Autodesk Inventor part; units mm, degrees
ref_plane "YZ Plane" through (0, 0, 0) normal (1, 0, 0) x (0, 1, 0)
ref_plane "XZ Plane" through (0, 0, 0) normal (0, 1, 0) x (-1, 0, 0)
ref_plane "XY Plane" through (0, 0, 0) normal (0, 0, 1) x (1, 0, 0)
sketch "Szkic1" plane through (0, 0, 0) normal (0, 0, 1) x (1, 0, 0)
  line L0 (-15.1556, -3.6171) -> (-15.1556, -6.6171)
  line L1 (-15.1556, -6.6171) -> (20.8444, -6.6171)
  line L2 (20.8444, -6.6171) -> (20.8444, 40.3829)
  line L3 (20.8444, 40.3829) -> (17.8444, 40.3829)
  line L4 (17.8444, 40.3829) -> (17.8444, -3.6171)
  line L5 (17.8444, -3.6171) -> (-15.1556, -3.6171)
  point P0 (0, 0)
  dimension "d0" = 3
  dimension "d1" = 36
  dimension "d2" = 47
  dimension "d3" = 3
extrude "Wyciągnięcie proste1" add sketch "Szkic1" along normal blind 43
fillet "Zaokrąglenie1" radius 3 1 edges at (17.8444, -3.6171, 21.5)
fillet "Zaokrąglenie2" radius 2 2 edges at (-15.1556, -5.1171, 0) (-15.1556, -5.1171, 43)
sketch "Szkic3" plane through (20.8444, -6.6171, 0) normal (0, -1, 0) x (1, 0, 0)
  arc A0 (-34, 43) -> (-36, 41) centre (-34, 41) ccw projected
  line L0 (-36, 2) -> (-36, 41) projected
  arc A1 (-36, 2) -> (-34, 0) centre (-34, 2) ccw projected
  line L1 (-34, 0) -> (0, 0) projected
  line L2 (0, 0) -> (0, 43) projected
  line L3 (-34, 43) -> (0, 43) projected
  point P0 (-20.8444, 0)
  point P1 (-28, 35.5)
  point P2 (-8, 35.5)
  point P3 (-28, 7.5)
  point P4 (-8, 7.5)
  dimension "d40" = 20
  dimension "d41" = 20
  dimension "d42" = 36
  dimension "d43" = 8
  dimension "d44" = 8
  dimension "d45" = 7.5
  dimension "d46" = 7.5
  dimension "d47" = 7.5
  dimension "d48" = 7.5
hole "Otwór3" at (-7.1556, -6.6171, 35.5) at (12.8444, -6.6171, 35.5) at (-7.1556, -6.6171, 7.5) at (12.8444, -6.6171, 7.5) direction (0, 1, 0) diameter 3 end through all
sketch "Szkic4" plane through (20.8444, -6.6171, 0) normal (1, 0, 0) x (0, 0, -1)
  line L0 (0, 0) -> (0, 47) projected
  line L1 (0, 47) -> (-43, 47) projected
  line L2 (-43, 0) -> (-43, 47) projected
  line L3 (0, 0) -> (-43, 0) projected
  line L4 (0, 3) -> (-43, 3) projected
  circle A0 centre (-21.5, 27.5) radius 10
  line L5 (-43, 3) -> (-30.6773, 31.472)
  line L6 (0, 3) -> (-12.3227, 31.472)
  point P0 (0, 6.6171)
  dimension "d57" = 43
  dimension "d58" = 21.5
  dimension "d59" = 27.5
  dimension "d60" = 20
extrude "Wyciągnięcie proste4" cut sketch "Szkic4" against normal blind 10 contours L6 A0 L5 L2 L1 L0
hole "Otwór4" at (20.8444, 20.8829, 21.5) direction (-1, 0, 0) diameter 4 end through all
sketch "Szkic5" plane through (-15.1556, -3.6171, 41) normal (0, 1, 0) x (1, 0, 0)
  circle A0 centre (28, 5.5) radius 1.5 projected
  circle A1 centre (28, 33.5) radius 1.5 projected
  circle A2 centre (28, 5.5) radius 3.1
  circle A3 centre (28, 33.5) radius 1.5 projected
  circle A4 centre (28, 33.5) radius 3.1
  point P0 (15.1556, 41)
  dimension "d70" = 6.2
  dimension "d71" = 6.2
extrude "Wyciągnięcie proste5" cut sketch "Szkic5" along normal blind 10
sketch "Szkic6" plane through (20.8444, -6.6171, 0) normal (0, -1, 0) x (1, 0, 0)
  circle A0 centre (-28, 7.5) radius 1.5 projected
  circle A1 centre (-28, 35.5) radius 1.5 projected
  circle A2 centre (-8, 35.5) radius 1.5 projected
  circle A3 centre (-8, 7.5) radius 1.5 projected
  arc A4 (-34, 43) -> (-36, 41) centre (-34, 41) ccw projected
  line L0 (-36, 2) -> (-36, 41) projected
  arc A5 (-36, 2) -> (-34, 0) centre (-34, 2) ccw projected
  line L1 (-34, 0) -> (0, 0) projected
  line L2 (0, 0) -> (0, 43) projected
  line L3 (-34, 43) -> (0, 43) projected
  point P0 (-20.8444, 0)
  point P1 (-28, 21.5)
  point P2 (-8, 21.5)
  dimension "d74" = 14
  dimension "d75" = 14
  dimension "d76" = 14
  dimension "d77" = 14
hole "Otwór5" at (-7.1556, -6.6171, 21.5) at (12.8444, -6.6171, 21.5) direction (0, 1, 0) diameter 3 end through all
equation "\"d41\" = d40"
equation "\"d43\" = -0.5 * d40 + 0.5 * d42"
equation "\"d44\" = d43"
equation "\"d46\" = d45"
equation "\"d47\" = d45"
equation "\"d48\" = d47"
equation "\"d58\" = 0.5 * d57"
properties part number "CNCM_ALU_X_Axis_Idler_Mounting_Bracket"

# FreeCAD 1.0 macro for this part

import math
import FreeCAD as App
import Part
import Sketcher

V = App.Vector
Q = App.Units.Quantity


def edges_at(feature, points):
    """Names of the edges that pass closest to the given points."""
    edges = feature.Shape.Edges
    near = lambda p: min(range(len(edges)), key=lambda i: edges[i].distToShape(Part.Vertex(*p))[0])
    return sorted({f"Edge{near(p) + 1}" for p in points})


def add_polygon(sketch, points):
    """Adds a closed chain of lines whose ends are joined by coincident constraints."""
    first, n = sketch.GeometryCount, len(points)
    for a, b in zip(points, points[1:] + points[:1]):
        sketch.addGeometry(Part.LineSegment(App.Vector(*a, 0), App.Vector(*b, 0)), False)
    for i in range(n):
        sketch.addConstraint(Sketcher.Constraint("Coincident", first + i, 2, first + (i + 1) % n, 1))

doc = App.newDocument("Part")
body = doc.addObject("PartDesign::Body", "Body")

# Sketch on XY plane
sketch1 = body.newObject("Sketcher::SketchObject", "Sketch")
sketch1.AttachmentSupport = (doc.getObject("XY_Plane"), [""])
sketch1.MapMode = "FlatFace"
add_polygon(sketch1, [(17.8444, -3.6171), (-15.1556, -3.6171), (-15.1556, -6.6171), (20.8444, -6.6171), (20.8444, 40.3829), (17.8444, 40.3829)])  # lines 0-5
sketch1.addConstraint([
    Sketcher.Constraint("Horizontal", 0),
    Sketcher.Constraint("Vertical", 1),
    Sketcher.Constraint("Horizontal", 2),
    Sketcher.Constraint("Vertical", 3),
    Sketcher.Constraint("Horizontal", 4),
    Sketcher.Constraint("Vertical", 5),
    Sketcher.Constraint("Equal", 4, 1),
    Sketcher.Constraint("DistanceX", 2, 1, 2, 2, Q("36 mm")),
    Sketcher.Constraint("DistanceX", 4, 2, 4, 1, Q("3 mm")),
    Sketcher.Constraint("DistanceY", 3, 1, 3, 2, Q("47 mm")),
    Sketcher.Constraint("DistanceY", 0, 2, -1, 1, Q("3.617 mm")),
    Sketcher.Constraint("DistanceX", 0, 2, -1, 1, Q("15.1556 mm")),
])
pad1 = body.newObject("PartDesign::Pad", "Pad")
pad1.Profile = sketch1
pad1.Length = 43
doc.recompute()

fillet = body.newObject("PartDesign::Fillet", "Fillet")
fillet.Base = (pad1, edges_at(pad1, [(17.844, -3.617, 21.5)]))
fillet.Radius = 3
doc.recompute()

fillet2 = body.newObject("PartDesign::Fillet", "Fillet001")
fillet2.Base = (fillet, edges_at(fillet, [(-15.156, -5.117, 0), (-15.156, -5.117, 43)]))
fillet2.Radius = 2

# Sketch on XZ plane
sketch2 = body.newObject("Sketcher::SketchObject", "Sketch001")
sketch2.AttachmentSupport = (doc.getObject("XZ_Plane"), [""])
sketch2.MapMode = "FlatFace"
sketch2.AttachmentOffset = App.Placement(V(0, 0, 6.6171), App.Rotation())
sketch2.addGeometry([
    Part.Circle(V(-7.1556, 35.5, 0), V(0, 0, 1), 1.5),
    Part.Circle(V(12.8444, 35.5, 0), V(0, 0, 1), 1.5),
    Part.Circle(V(-7.1556, 7.5, 0), V(0, 0, 1), 1.5),
    Part.Circle(V(12.8444, 7.5, 0), V(0, 0, 1), 1.5),
], False)
sketch2.addConstraint([
    Sketcher.Constraint("Equal", 0, 1),
    Sketcher.Constraint("Equal", 1, 2),
    Sketcher.Constraint("Equal", 2, 3),
    Sketcher.Constraint("Horizontal", 0, 3, 1, 3),
    Sketcher.Constraint("Horizontal", 2, 3, 3, 3),
    Sketcher.Constraint("Vertical", 0, 3, 2, 3),
    Sketcher.Constraint("Vertical", 1, 3, 3, 3),
    Sketcher.Constraint("Diameter", 0, Q("3 mm")),
    Sketcher.Constraint("DistanceX", 0, 3, 1, 3, Q("20 mm")),
    Sketcher.Constraint("DistanceY", 2, 3, 0, 3, Q("28 mm")),
    Sketcher.Constraint("DistanceY", -1, 1, 0, 3, Q("35.5 mm")),
    Sketcher.Constraint("DistanceX", 0, 3, -1, 1, Q("7.1556 mm")),
])
doc.recompute()
hole = body.newObject("PartDesign::Hole", "Hole")
hole.Profile = sketch2
hole.ThreadType = "None"
hole.Diameter = 3
hole.DepthType = "ThroughAll"

# Sketch on YZ plane
sketch3 = body.newObject("Sketcher::SketchObject", "Sketch002")
sketch3.AttachmentSupport = (doc.getObject("YZ_Plane"), [""])
sketch3.MapMode = "FlatFace"
sketch3.AttachmentOffset = App.Placement(V(0, 0, 20.8444), App.Rotation())
sketch3.addGeometry([
    Part.LineSegment(V(24.8549, 12.3227, 0), V(-3.6171, 0, 0)),  # 0
    Part.LineSegment(V(-3.6171, 0, 0), V(40.3829, 0, 0)),  # 1
    Part.LineSegment(V(40.3829, 0, 0), V(40.3829, 43, 0)),  # 2
    Part.LineSegment(V(40.3829, 43, 0), V(-3.6171, 43, 0)),  # 3
    Part.LineSegment(V(-3.6171, 43, 0), V(24.8549, 30.6773, 0)),  # 4
    Part.ArcOfCircle(Part.Circle(V(20.8829, 21.5, 0), V(0, 0, 1), 10), math.radians(-66.5967), math.radians(66.5967)),  # 5
], False)
sketch3.addConstraint([
    Sketcher.Constraint("Coincident", 0, 2, 1, 1),
    Sketcher.Constraint("Coincident", 1, 2, 2, 1),
    Sketcher.Constraint("Coincident", 2, 2, 3, 1),
    Sketcher.Constraint("Coincident", 3, 2, 4, 1),
    Sketcher.Constraint("Tangent", 4, 2, 5, 2),
    Sketcher.Constraint("Tangent", 5, 1, 0, 1),
    Sketcher.Constraint("Horizontal", 1),
    Sketcher.Constraint("Vertical", 2),
    Sketcher.Constraint("Horizontal", 3),
    Sketcher.Constraint("PointOnObject", 0, 2, -1),
    Sketcher.Constraint("Vertical", 0, 2, 3, 2),
    Sketcher.Constraint("Vertical", 4, 2, 5, 1),
    Sketcher.Constraint("Radius", 5, Q("10 mm")),
    Sketcher.Constraint("DistanceY", 2, 1, 2, 2, Q("43 mm")),
    Sketcher.Constraint("DistanceX", 1, 1, 1, 2, Q("44 mm")),
    Sketcher.Constraint("DistanceX", 0, 2, 5, 3, Q("24.5 mm")),
    Sketcher.Constraint("DistanceX", -1, 1, 5, 3, Q("20.883 mm")),
])
pocket1 = body.newObject("PartDesign::Pocket", "Pocket")
pocket1.Profile = sketch3
pocket1.Length = 10

# Sketch on YZ plane
sketch4 = body.newObject("Sketcher::SketchObject", "Sketch003")
sketch4.AttachmentSupport = (doc.getObject("YZ_Plane"), [""])
sketch4.MapMode = "FlatFace"
sketch4.AttachmentOffset = App.Placement(V(0, 0, 20.8444), App.Rotation())
sketch4.addGeometry(Part.Circle(V(20.8829, 21.5, 0), V(0, 0, 1), 2), False)
sketch4.addConstraint([
    Sketcher.Constraint("Diameter", 0, Q("4 mm")),
    Sketcher.Constraint("DistanceY", -1, 1, 0, 3, Q("21.5 mm")),
    Sketcher.Constraint("DistanceX", -1, 1, 0, 3, Q("20.883 mm")),
])
doc.recompute()
hole2 = body.newObject("PartDesign::Hole", "Hole001")
hole2.Profile = sketch4
hole2.ThreadType = "None"
hole2.Diameter = 4
hole2.DepthType = "ThroughAll"

# Sketch on XZ plane
sketch5 = body.newObject("Sketcher::SketchObject", "Sketch004")
sketch5.AttachmentSupport = (doc.getObject("XZ_Plane"), [""])
sketch5.MapMode = "FlatFace"
sketch5.AttachmentOffset = App.Placement(V(0, 0, 3.6171), App.Rotation())
sketch5.addGeometry([
    Part.Circle(V(12.8444, 35.5, 0), V(0, 0, 1), 3.1),
    Part.Circle(V(12.8444, 35.5, 0), V(0, 0, 1), 1.5),
    Part.Circle(V(12.8444, 7.5, 0), V(0, 0, 1), 3.1),
    Part.Circle(V(12.8444, 7.5, 0), V(0, 0, 1), 1.5),
], False)
sketch5.addConstraint([
    Sketcher.Constraint("Coincident", 1, 3, 0, 3),
    Sketcher.Constraint("Coincident", 3, 3, 2, 3),
    Sketcher.Constraint("Equal", 0, 2),
    Sketcher.Constraint("Equal", 1, 3),
    Sketcher.Constraint("Vertical", 1, 3, 2, 3),
    Sketcher.Constraint("Diameter", 0, Q("6.2 mm")),
    Sketcher.Constraint("Diameter", 1, Q("3 mm")),
    Sketcher.Constraint("DistanceY", 2, 3, 0, 3, Q("28 mm")),
    Sketcher.Constraint("DistanceY", -1, 1, 0, 3, Q("35.5 mm")),
    Sketcher.Constraint("DistanceX", -1, 1, 0, 3, Q("12.8444 mm")),
])
pocket2 = body.newObject("PartDesign::Pocket", "Pocket001")
pocket2.Profile = sketch5
pocket2.Length = 10

# Sketch on XZ plane
sketch6 = body.newObject("Sketcher::SketchObject", "Sketch005")
sketch6.AttachmentSupport = (doc.getObject("XZ_Plane"), [""])
sketch6.MapMode = "FlatFace"
sketch6.AttachmentOffset = App.Placement(V(0, 0, 6.6171), App.Rotation())
sketch6.addGeometry([
    Part.Circle(V(-7.1556, 21.5, 0), V(0, 0, 1), 1.5),
    Part.Circle(V(12.8444, 21.5, 0), V(0, 0, 1), 1.5),
], False)
sketch6.addConstraint([
    Sketcher.Constraint("Equal", 0, 1),
    Sketcher.Constraint("Horizontal", 0, 3, 1, 3),
    Sketcher.Constraint("Diameter", 0, Q("3 mm")),
    Sketcher.Constraint("DistanceX", 0, 3, 1, 3, Q("20 mm")),
    Sketcher.Constraint("DistanceY", -1, 1, 0, 3, Q("21.5 mm")),
    Sketcher.Constraint("DistanceX", 0, 3, -1, 1, Q("7.1556 mm")),
])
doc.recompute()
hole3 = body.newObject("PartDesign::Hole", "Hole002")
hole3.Profile = sketch6
hole3.ThreadType = "None"
hole3.Diameter = 3
hole3.DepthType = "ThroughAll"

doc.recompute()
